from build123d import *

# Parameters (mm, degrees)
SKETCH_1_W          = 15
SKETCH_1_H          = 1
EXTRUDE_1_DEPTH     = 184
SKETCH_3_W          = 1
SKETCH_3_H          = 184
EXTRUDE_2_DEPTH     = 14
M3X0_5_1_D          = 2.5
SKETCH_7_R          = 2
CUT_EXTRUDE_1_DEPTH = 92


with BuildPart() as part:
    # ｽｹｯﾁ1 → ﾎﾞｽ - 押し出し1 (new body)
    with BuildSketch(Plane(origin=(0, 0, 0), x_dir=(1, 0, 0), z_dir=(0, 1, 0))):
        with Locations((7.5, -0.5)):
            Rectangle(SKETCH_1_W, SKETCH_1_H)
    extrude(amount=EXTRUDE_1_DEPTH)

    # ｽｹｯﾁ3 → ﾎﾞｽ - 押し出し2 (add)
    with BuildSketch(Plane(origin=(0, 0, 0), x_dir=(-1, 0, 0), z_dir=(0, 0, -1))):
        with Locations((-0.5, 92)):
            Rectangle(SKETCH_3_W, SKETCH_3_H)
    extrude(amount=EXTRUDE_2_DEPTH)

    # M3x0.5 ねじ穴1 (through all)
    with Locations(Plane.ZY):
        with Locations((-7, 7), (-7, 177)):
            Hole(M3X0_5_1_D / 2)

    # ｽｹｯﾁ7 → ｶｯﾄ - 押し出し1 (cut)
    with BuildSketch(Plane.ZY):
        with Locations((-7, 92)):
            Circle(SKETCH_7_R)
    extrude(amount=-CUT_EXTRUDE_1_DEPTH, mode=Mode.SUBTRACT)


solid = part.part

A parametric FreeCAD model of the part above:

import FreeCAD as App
import Part
import Sketcher

V = App.Vector
Q = App.Units.Quantity


def add_polygon(sketch, points):
    """Adds a closed chain of lines whose ends are joined by coincident constraints."""
    first, n = sketch.GeometryCount, len(points)
    for a, b in zip(points, points[1:] + points[:1]):
        sketch.addGeometry(Part.LineSegment(App.Vector(*a, 0), App.Vector(*b, 0)), False)
    for i in range(n):
        sketch.addConstraint(Sketcher.Constraint("Coincident", first + i, 2, first + (i + 1) % n, 1))

doc = App.newDocument("Part")
body = doc.addObject("PartDesign::Body", "Body")

# Sketch on XZ plane
sketch1 = body.newObject("Sketcher::SketchObject", "Sketch")
sketch1.AttachmentSupport = (doc.getObject("XZ_Plane"), [""])
sketch1.MapMode = "FlatFace"
add_polygon(sketch1, [(0, 0), (0, 1), (15, 1), (15, 0)])  # lines 0-3
sketch1.addConstraint(Sketcher.Constraint("Vertical", 0))
sketch1.addConstraint(Sketcher.Constraint("Horizontal", 1))
sketch1.addConstraint(Sketcher.Constraint("Vertical", 2))
sketch1.addConstraint(Sketcher.Constraint("Horizontal", 3))
sketch1.addConstraint(Sketcher.Constraint("Coincident", 3, 2, -1, 1))
sketch1.addConstraint(Sketcher.Constraint("DistanceX", 1, 1, 1, 2, Q("15 mm")))
sketch1.addConstraint(Sketcher.Constraint("DistanceY", 0, 1, 0, 2, Q("1 mm")))
pad1 = body.newObject("PartDesign::Pad", "Pad")
pad1.Profile = sketch1
pad1.Length = 184
pad1.Reversed = True

# Sketch on XY plane
sketch2 = body.newObject("Sketcher::SketchObject", "Sketch001")
sketch2.AttachmentSupport = (doc.getObject("XY_Plane"), [""])
sketch2.MapMode = "FlatFace"
add_polygon(sketch2, [(1, 184), (1, 0), (0, 0), (0, 184)])  # lines 0-3
sketch2.addConstraint(Sketcher.Constraint("Vertical", 0))
sketch2.addConstraint(Sketcher.Constraint("Horizontal", 1))
sketch2.addConstraint(Sketcher.Constraint("Vertical", 2))
sketch2.addConstraint(Sketcher.Constraint("Horizontal", 3))
sketch2.addConstraint(Sketcher.Constraint("Coincident", 1, 2, -1, 1))
sketch2.addConstraint(Sketcher.Constraint("DistanceX", 1, 2, 1, 1, Q("1 mm")))
sketch2.addConstraint(Sketcher.Constraint("DistanceY", 0, 2, 0, 1, Q("184 mm")))
pad2 = body.newObject("PartDesign::Pad", "Pad001")
pad2.Profile = sketch2
pad2.Length = 14
pad2.Reversed = True

# Sketch on YZ plane
sketch3 = body.newObject("Sketcher::SketchObject", "Sketch002")
sketch3.AttachmentSupport = (doc.getObject("YZ_Plane"), [""])
sketch3.MapMode = "FlatFace"
sketch3.addGeometry(Part.Circle(V(7, -7, 0), V(0, 0, 1), 1.25), False)
sketch3.addGeometry(Part.Circle(V(177, -7, 0), V(0, 0, 1), 1.25), False)
sketch3.addConstraint(Sketcher.Constraint("Equal", 0, 1))
sketch3.addConstraint(Sketcher.Constraint("Horizontal", 0, 3, 1, 3))
sketch3.addConstraint(Sketcher.Constraint("Diameter", 0, Q("2.5 mm")))
sketch3.addConstraint(Sketcher.Constraint("DistanceX", -1, 1, 0, 3, Q("7 mm")))
sketch3.addConstraint(Sketcher.Constraint("DistanceY", 0, 3, -1, 1, Q("7 mm")))
sketch3.addConstraint(Sketcher.Constraint("DistanceX", -1, 1, 1, 3, Q("177 mm")))
doc.recompute()
hole = body.newObject("PartDesign::Hole", "Hole")
hole.Profile = sketch3
hole.ThreadType = "None"
hole.Diameter = 2.5
hole.DepthType = "ThroughAll"
hole.Reversed = True

# Sketch on YZ plane
sketch4 = body.newObject("Sketcher::SketchObject", "Sketch003")
sketch4.AttachmentSupport = (doc.getObject("YZ_Plane"), [""])
sketch4.MapMode = "FlatFace"
sketch4.addGeometry(Part.Circle(V(92, -7, 0), V(0, 0, 1), 2), False)
sketch4.addConstraint(Sketcher.Constraint("Diameter", 0, Q("4 mm")))
sketch4.addConstraint(Sketcher.Constraint("DistanceX", -1, 1, 0, 3, Q("92 mm")))
sketch4.addConstraint(Sketcher.Constraint("DistanceY", 0, 3, -1, 1, Q("7 mm")))
pocket1 = body.newObject("PartDesign::Pocket", "Pocket")
pocket1.Profile = sketch4
pocket1.Length = 92
pocket1.Reversed = True

doc.recompute()
